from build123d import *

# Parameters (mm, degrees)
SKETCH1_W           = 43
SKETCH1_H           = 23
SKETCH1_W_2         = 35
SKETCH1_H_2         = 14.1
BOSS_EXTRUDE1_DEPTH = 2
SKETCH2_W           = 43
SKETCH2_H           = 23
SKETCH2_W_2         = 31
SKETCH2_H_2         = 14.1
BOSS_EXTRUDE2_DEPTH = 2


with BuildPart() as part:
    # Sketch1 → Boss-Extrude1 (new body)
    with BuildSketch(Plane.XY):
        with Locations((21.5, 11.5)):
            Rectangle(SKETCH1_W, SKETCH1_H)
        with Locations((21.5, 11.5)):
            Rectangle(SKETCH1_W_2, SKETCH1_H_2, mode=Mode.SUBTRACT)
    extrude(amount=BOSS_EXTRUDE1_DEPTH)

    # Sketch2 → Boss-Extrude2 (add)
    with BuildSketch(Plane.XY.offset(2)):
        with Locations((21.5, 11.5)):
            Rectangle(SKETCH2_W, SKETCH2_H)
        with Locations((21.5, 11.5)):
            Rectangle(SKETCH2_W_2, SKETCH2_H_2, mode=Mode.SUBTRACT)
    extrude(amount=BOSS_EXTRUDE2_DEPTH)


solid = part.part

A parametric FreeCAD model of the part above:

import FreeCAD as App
import Part
import Sketcher
Q = App.Units.Quantity


def add_polygon(sketch, points):
    """Adds a closed chain of lines whose ends are joined by coincident constraints."""
    first, n = sketch.GeometryCount, len(points)
    for a, b in zip(points, points[1:] + points[:1]):
        sketch.addGeometry(Part.LineSegment(App.Vector(*a, 0), App.Vector(*b, 0)), False)
    for i in range(n):
        sketch.addConstraint(Sketcher.Constraint("Coincident", first + i, 2, first + (i + 1) % n, 1))

doc = App.newDocument("Part")
body = doc.addObject("PartDesign::Body", "Body")

# Sketch on XY plane
sketch1 = doc.addObject("Sketcher::SketchObject", "Sketch")
body.addObject(sketch1)
sketch1.AttachmentSupport = (doc.XY_Plane, [""])
sketch1.MapMode = "FlatFace"
add_polygon(sketch1, [(0, 23), (0, 0), (43, 0), (43, 23)])  # lines 0-3
add_polygon(sketch1, [(39, 4.45), (4, 4.45), (4, 18.55), (39, 18.55)])  # lines 4-7
sketch1.addConstraint([
    Sketcher.Constraint("Vertical", 0),
    Sketcher.Constraint("Horizontal", 1),
    Sketcher.Constraint("Vertical", 2),
    Sketcher.Constraint("Horizontal", 3),
    Sketcher.Constraint("Horizontal", 4),
    Sketcher.Constraint("Vertical", 5),
    Sketcher.Constraint("Horizontal", 6),
    Sketcher.Constraint("Vertical", 7),
    Sketcher.Constraint("Coincident", 0, 2, -1, 1),
    Sketcher.Constraint("DistanceX", 1, 1, 1, 2, Q("43 mm")),
    Sketcher.Constraint("DistanceX", 4, 2, 4, 1, Q("35 mm")),
    Sketcher.Constraint("DistanceY", 0, 2, 0, 1, Q("23 mm")),
    Sketcher.Constraint("DistanceY", 5, 1, 5, 2, Q("14.1 mm")),
    Sketcher.Constraint("DistanceX", -1, 1, 4, 2, Q("4 mm")),
    Sketcher.Constraint("DistanceY", -1, 1, 4, 2, Q("4.45 mm")),
])
pad1 = doc.addObject("PartDesign::Pad", "Pad")
body.addObject(pad1)
pad1.Profile = sketch1
pad1.Length = 2

# Sketch on XY plane
sketch2 = doc.addObject("Sketcher::SketchObject", "Sketch001")
body.addObject(sketch2)
sketch2.AttachmentSupport = (doc.XY_Plane, [""])
sketch2.MapMode = "FlatFace"
sketch2.AttachmentOffset = App.Placement(App.Vector(0, 0, 2), App.Rotation())
add_polygon(sketch2, [(0, 23), (0, 0), (43, 0), (43, 23)])  # lines 0-3
add_polygon(sketch2, [(37, 4.45), (6, 4.45), (6, 18.55), (37, 18.55)])  # lines 4-7
sketch2.addConstraint([
    Sketcher.Constraint("Vertical", 0),
    Sketcher.Constraint("Horizontal", 1),
    Sketcher.Constraint("Vertical", 2),
    Sketcher.Constraint("Horizontal", 3),
    Sketcher.Constraint("Horizontal", 4),
    Sketcher.Constraint("Vertical", 5),
    Sketcher.Constraint("Horizontal", 6),
    Sketcher.Constraint("Vertical", 7),
    Sketcher.Constraint("Coincident", 0, 2, -1, 1),
    Sketcher.Constraint("DistanceX", 1, 1, 1, 2, Q("43 mm")),
    Sketcher.Constraint("DistanceX", 4, 2, 4, 1, Q("31 mm")),
    Sketcher.Constraint("DistanceY", 0, 2, 0, 1, Q("23 mm")),
    Sketcher.Constraint("DistanceY", 5, 1, 5, 2, Q("14.1 mm")),
    Sketcher.Constraint("DistanceX", -1, 1, 4, 2, Q("6 mm")),
    Sketcher.Constraint("DistanceY", -1, 1, 4, 2, Q("4.45 mm")),
])
pad2 = doc.addObject("PartDesign::Pad", "Pad001")
body.addObject(pad2)
pad2.Profile = sketch2
pad2.Length = 2

doc.recompute()
